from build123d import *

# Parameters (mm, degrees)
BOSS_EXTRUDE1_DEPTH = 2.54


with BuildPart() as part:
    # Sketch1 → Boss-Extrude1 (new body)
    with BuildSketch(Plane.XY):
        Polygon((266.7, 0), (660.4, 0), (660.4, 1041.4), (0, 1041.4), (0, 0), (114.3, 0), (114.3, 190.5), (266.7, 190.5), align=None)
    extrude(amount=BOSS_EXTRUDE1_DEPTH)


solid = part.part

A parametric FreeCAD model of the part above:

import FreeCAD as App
import Part
import Sketcher
from FreeCAD import Vector
Q = App.Units.Quantity

doc = App.newDocument("Part")
body = doc.addObject("PartDesign::Body", "Body")

# Sketch on XY plane
sketch1 = doc.addObject("Sketcher::SketchObject", "Sketch")
body.addObject(sketch1)
sketch1.AttachmentSupport = (doc.XY_Plane, [""])
sketch1.MapMode = "FlatFace"
sketch1.addGeometry([
    Part.LineSegment(Vector(266.7, 0, 0), Vector(660.4, 0, 0)),  # 0
    Part.LineSegment(Vector(660.4, 0, 0), Vector(660.4, 1041.4, 0)),  # 1
    Part.LineSegment(Vector(660.4, 1041.4, 0), Vector(0, 1041.4, 0)),  # 2
    Part.LineSegment(Vector(0, 1041.4, 0), Vector(0, 0, 0)),  # 3
    Part.LineSegment(Vector(0, 0, 0), Vector(114.3, 0, 0)),  # 4
    Part.LineSegment(Vector(114.3, 0, 0), Vector(114.3, 190.5, 0)),  # 5
    Part.LineSegment(Vector(114.3, 190.5, 0), Vector(266.7, 190.5, 0)),  # 6
    Part.LineSegment(Vector(266.7, 190.5, 0), Vector(266.7, 0, 0)),  # 7
], False)
sketch1.addConstraint([
    Sketcher.Constraint("Coincident", 0, 2, 1, 1),
    Sketcher.Constraint("Coincident", 1, 2, 2, 1),
    Sketcher.Constraint("Coincident", 2, 2, 3, 1),
    Sketcher.Constraint("Coincident", 3, 2, 4, 1),
    Sketcher.Constraint("Coincident", 4, 2, 5, 1),
    Sketcher.Constraint("Coincident", 5, 2, 6, 1),
    Sketcher.Constraint("Coincident", 6, 2, 7, 1),
    Sketcher.Constraint("Coincident", 7, 2, 0, 1),
    Sketcher.Constraint("Horizontal", 0),
    Sketcher.Constraint("Vertical", 1),
    Sketcher.Constraint("Horizontal", 2),
    Sketcher.Constraint("Vertical", 3),
    Sketcher.Constraint("Horizontal", 4),
    Sketcher.Constraint("Vertical", 5),
    Sketcher.Constraint("Horizontal", 6),
    Sketcher.Constraint("Vertical", 7),
    Sketcher.Constraint("Coincident", 3, 2, -1, 1),
    Sketcher.Constraint("PointOnObject", 0, 2, -1),
    Sketcher.Constraint("DistanceX", 2, 2, 2, 1, Q("26 in")),
    Sketcher.Constraint("DistanceX", 6, 1, 6, 2, Q("6 in")),
    Sketcher.Constraint("DistanceY", 1, 1, 1, 2, Q("41 in")),
    Sketcher.Constraint("DistanceX", 0, 1, 0, 2, Q("15.5 in")),
    Sketcher.Constraint("DistanceY", 5, 1, 5, 2, Q("7.5 in")),
])
pad1 = doc.addObject("PartDesign::Pad", "Pad")
body.addObject(pad1)
pad1.Profile = sketch1
pad1.Length = Q("0.1 in")

doc.recompute()
